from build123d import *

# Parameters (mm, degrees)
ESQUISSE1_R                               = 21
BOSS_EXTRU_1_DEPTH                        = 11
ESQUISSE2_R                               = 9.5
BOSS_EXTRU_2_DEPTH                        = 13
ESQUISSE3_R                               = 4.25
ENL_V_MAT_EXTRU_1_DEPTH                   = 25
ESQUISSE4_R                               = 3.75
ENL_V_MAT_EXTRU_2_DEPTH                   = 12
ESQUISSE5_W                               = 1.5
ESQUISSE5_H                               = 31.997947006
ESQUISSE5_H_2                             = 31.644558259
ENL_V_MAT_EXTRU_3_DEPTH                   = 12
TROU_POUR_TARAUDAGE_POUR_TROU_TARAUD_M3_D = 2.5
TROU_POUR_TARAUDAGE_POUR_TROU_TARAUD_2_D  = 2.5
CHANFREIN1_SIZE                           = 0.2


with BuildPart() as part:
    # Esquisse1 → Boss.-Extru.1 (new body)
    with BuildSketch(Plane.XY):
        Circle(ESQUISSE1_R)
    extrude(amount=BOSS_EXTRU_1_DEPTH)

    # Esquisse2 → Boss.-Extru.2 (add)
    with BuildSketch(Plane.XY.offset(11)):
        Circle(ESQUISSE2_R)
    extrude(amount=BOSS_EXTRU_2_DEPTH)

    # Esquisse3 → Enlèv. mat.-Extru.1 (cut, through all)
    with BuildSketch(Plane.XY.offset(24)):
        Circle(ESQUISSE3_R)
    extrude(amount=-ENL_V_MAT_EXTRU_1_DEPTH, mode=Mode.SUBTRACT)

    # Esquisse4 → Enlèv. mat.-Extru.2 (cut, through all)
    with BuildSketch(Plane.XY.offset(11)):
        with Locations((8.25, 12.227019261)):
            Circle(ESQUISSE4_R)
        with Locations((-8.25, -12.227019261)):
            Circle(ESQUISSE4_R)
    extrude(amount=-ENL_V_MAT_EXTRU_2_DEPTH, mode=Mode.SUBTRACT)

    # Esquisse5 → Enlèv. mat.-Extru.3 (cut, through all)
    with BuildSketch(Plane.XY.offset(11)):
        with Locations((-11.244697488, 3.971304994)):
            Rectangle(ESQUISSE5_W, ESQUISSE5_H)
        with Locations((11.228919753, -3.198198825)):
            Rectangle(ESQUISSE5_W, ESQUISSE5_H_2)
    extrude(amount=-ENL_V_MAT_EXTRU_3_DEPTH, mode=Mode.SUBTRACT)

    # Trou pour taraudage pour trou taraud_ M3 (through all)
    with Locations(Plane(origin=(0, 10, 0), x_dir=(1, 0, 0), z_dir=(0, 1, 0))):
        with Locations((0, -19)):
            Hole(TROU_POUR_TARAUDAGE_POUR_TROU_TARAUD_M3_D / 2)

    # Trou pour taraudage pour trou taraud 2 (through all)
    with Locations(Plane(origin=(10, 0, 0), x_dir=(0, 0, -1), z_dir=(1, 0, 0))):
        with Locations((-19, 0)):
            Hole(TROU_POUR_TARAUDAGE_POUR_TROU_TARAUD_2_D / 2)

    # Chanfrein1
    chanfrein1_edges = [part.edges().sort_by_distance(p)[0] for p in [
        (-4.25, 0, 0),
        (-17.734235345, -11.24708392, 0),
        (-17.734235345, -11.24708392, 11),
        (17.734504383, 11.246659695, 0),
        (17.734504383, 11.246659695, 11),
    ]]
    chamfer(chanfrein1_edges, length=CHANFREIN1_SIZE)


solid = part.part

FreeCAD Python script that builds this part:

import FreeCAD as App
import Part
import Sketcher

V = App.Vector
Q = App.Units.Quantity


def edges_at(feature, points):
    """Names of the edges that pass closest to the given points."""
    edges = feature.Shape.Edges
    near = lambda p: min(range(len(edges)), key=lambda i: edges[i].distToShape(Part.Vertex(*p))[0])
    return sorted({f"Edge{near(p) + 1}" for p in points})

doc = App.newDocument("Part")
body = doc.addObject("PartDesign::Body", "Body")

# Sketch on XY plane
sketch1 = body.newObject("Sketcher::SketchObject", "Sketch")
sketch1.AttachmentSupport = (doc.getObject("XY_Plane"), [""])
sketch1.MapMode = "FlatFace"
sketch1.addGeometry(Part.Circle(V(0, 0, 0), V(0, 0, 1), 21), False)
sketch1.addConstraint(Sketcher.Constraint("Coincident", 0, 3, -1, 1))
sketch1.addConstraint(Sketcher.Constraint("Diameter", 0, Q("42 mm")))
pad1 = body.newObject("PartDesign::Pad", "Pad")
pad1.Profile = sketch1
pad1.Length = 11

# Sketch on XY plane
sketch2 = body.newObject("Sketcher::SketchObject", "Sketch001")
sketch2.AttachmentSupport = (doc.getObject("XY_Plane"), [""])
sketch2.MapMode = "FlatFace"
sketch2.AttachmentOffset = App.Placement(V(0, 0, 11), App.Rotation())
sketch2.addGeometry(Part.Circle(V(0, 0, 0), V(0, 0, 1), 10), False)
sketch2.addConstraint(Sketcher.Constraint("Coincident", 0, 3, -1, 1))
sketch2.addConstraint(Sketcher.Constraint("Diameter", 0, Q("19 mm")))
pad2 = body.newObject("PartDesign::Pad", "Pad001")
pad2.Profile = sketch2
pad2.Length = 13

# Sketch on XY plane
sketch3 = body.newObject("Sketcher::SketchObject", "Sketch002")
sketch3.AttachmentSupport = (doc.getObject("XY_Plane"), [""])
sketch3.MapMode = "FlatFace"
sketch3.AttachmentOffset = App.Placement(V(0, 0, 24), App.Rotation())
sketch3.addGeometry(Part.Circle(V(0, 0, 0), V(0, 0, 1), 4.2), False)
sketch3.addConstraint(Sketcher.Constraint("Coincident", 0, 3, -1, 1))
sketch3.addConstraint(Sketcher.Constraint("Diameter", 0, Q("8.5 mm")))
pocket1 = body.newObject("PartDesign::Pocket", "Pocket")
pocket1.Profile = sketch3
pocket1.Type = "ThroughAll"

# Sketch on XY plane
sketch4 = body.newObject("Sketcher::SketchObject", "Sketch003")
sketch4.AttachmentSupport = (doc.getObject("XY_Plane"), [""])
sketch4.MapMode = "FlatFace"
sketch4.AttachmentOffset = App.Placement(V(0, 0, 11), App.Rotation())
sketch4.addGeometry(Part.Circle(V(8.2, 12.2, 0), V(0, 0, 1), 3.8), False)
sketch4.addGeometry(Part.Circle(V(-8.2, -12.2, 0), V(0, 0, 1), 3.8), False)
sketch4.addConstraint(Sketcher.Constraint("Equal", 0, 1))
sketch4.addConstraint(Sketcher.Constraint("Symmetric", 0, 3, 1, 3, -1, 1))
sketch4.addConstraint(Sketcher.Constraint("Diameter", 0, Q("7.5 mm")))
sketch4.addConstraint(Sketcher.Constraint("DistanceX", 1, 3, 0, 3, Q("16.5 mm")))
sketch4.addConstraint(Sketcher.Constraint("DistanceY", -1, 1, 0, 3, Q("12.227019 mm")))
pocket2 = body.newObject("PartDesign::Pocket", "Pocket001")
pocket2.Profile = sketch4
pocket2.Type = "ThroughAll"

# Sketch on XY plane
sketch5 = body.newObject("Sketcher::SketchObject", "Sketch004")
sketch5.AttachmentSupport = (doc.getObject("XY_Plane"), [""])
sketch5.MapMode = "FlatFace"
sketch5.AttachmentOffset = App.Placement(V(0, 0, 11), App.Rotation())
sketch5.addGeometry(Part.LineSegment(V(-12, 20, 0), V(-12, -12, 0)), False)
sketch5.addGeometry(Part.LineSegment(V(-12, -12, 0), V(-10.5, -12, 0)), False)
sketch5.addGeometry(Part.LineSegment(V(-10.5, -12, 0), V(-10.5, 20, 0)), False)
sketch5.addGeometry(Part.LineSegment(V(-10.5, 20, 0), V(-12, 20, 0)), False)
sketch5.addGeometry(Part.LineSegment(V(10.5, 12.6, 0), V(10.5, -19, 0)), False)
sketch5.addGeometry(Part.LineSegment(V(10.5, -19, 0), V(12, -19, 0)), False)
sketch5.addGeometry(Part.LineSegment(V(12, -19, 0), V(12, 12.6, 0)), False)
sketch5.addGeometry(Part.LineSegment(V(12, 12.6, 0), V(10.5, 12.6, 0)), False)
sketch5.addConstraint(Sketcher.Constraint("Coincident", 0, 2, 1, 1))
sketch5.addConstraint(Sketcher.Constraint("Coincident", 1, 2, 2, 1))
sketch5.addConstraint(Sketcher.Constraint("Coincident", 2, 2, 3, 1))
sketch5.addConstraint(Sketcher.Constraint("Coincident", 3, 2, 0, 1))
sketch5.addConstraint(Sketcher.Constraint("Coincident", 4, 2, 5, 1))
sketch5.addConstraint(Sketcher.Constraint("Coincident", 5, 2, 6, 1))
sketch5.addConstraint(Sketcher.Constraint("Coincident", 6, 2, 7, 1))
sketch5.addConstraint(Sketcher.Constraint("Coincident", 7, 2, 4, 1))
sketch5.addConstraint(Sketcher.Constraint("Vertical", 0))
sketch5.addConstraint(Sketcher.Constraint("Horizontal", 1))
sketch5.addConstraint(Sketcher.Constraint("Vertical", 2))
sketch5.addConstraint(Sketcher.Constraint("Horizontal", 3))
sketch5.addConstraint(Sketcher.Constraint("Vertical", 4))
sketch5.addConstraint(Sketcher.Constraint("Horizontal", 5))
sketch5.addConstraint(Sketcher.Constraint("Vertical", 6))
sketch5.addConstraint(Sketcher.Constraint("Horizontal", 7))
sketch5.addConstraint(Sketcher.Constraint("Equal", 3, 5))
sketch5.addConstraint(Sketcher.Constraint("DistanceX", 1, 1, 1, 2, Q("1.5 mm")))
sketch5.addConstraint(Sketcher.Constraint("DistanceY", 4, 2, 4, 1, Q("31.644558 mm")))
sketch5.addConstraint(Sketcher.Constraint("DistanceY", 6, 2, 2, 2, Q("7.346198 mm")))
sketch5.addConstraint(Sketcher.Constraint("DistanceY", 0, 2, 0, 1, Q("31.997947 mm")))
sketch5.addConstraint(Sketcher.Constraint("DistanceY", 0, 2, -1, 1, Q("12.027669 mm")))
sketch5.addConstraint(Sketcher.Constraint("DistanceX", -1, 1, 4, 2, Q("10.47892 mm")))
sketch5.addConstraint(Sketcher.Constraint("DistanceX", 0, 2, -1, 1, Q("11.994697 mm")))
pocket3 = body.newObject("PartDesign::Pocket", "Pocket002")
pocket3.Profile = sketch5
pocket3.Type = "ThroughAll"

# Sketch on XZ plane
sketch6 = body.newObject("Sketcher::SketchObject", "Sketch005")
sketch6.AttachmentSupport = (doc.getObject("XZ_Plane"), [""])
sketch6.MapMode = "FlatFace"
sketch6.AttachmentOffset = App.Placement(V(0, 0, -10), App.Rotation())
sketch6.addGeometry(Part.Circle(V(0, 19, 0), V(0, 0, 1), 1.2), False)
sketch6.addConstraint(Sketcher.Constraint("PointOnObject", 0, 3, -2))
sketch6.addConstraint(Sketcher.Constraint("Diameter", 0, Q("2.5 mm")))
sketch6.addConstraint(Sketcher.Constraint("DistanceY", -1, 1, 0, 3, Q("19 mm")))
doc.recompute()
hole = body.newObject("PartDesign::Hole", "Hole")
hole.Profile = sketch6
hole.ThreadType = "None"
hole.Diameter = 2.5
hole.DepthType = "ThroughAll"
hole.Reversed = True

# Sketch on YZ plane
sketch7 = body.newObject("Sketcher::SketchObject", "Sketch006")
sketch7.AttachmentSupport = (doc.getObject("YZ_Plane"), [""])
sketch7.MapMode = "FlatFace"
sketch7.AttachmentOffset = App.Placement(V(0, 0, 10), App.Rotation())
sketch7.addGeometry(Part.Circle(V(0, 19, 0), V(0, 0, 1), 1.2), False)
sketch7.addConstraint(Sketcher.Constraint("PointOnObject", 0, 3, -2))
sketch7.addConstraint(Sketcher.Constraint("Diameter", 0, Q("2.5 mm")))
sketch7.addConstraint(Sketcher.Constraint("DistanceY", -1, 1, 0, 3, Q("19 mm")))
doc.recompute()
hole2 = body.newObject("PartDesign::Hole", "Hole001")
hole2.Profile = sketch7
hole2.ThreadType = "None"
hole2.Diameter = 2.5
hole2.DepthType = "ThroughAll"
doc.recompute()

chamfer = body.newObject("PartDesign::Chamfer", "Chamfer")
chamfer.Base = (hole2, edges_at(hole2, [
    (-4.25, 0, 0),
    (-17.734, -11.247, 0),
    (-17.734, -11.247, 11),
    (17.735, 11.247, 0),
    (17.735, 11.247, 11),
]))
chamfer.Size = 0.2

doc.recompute()
